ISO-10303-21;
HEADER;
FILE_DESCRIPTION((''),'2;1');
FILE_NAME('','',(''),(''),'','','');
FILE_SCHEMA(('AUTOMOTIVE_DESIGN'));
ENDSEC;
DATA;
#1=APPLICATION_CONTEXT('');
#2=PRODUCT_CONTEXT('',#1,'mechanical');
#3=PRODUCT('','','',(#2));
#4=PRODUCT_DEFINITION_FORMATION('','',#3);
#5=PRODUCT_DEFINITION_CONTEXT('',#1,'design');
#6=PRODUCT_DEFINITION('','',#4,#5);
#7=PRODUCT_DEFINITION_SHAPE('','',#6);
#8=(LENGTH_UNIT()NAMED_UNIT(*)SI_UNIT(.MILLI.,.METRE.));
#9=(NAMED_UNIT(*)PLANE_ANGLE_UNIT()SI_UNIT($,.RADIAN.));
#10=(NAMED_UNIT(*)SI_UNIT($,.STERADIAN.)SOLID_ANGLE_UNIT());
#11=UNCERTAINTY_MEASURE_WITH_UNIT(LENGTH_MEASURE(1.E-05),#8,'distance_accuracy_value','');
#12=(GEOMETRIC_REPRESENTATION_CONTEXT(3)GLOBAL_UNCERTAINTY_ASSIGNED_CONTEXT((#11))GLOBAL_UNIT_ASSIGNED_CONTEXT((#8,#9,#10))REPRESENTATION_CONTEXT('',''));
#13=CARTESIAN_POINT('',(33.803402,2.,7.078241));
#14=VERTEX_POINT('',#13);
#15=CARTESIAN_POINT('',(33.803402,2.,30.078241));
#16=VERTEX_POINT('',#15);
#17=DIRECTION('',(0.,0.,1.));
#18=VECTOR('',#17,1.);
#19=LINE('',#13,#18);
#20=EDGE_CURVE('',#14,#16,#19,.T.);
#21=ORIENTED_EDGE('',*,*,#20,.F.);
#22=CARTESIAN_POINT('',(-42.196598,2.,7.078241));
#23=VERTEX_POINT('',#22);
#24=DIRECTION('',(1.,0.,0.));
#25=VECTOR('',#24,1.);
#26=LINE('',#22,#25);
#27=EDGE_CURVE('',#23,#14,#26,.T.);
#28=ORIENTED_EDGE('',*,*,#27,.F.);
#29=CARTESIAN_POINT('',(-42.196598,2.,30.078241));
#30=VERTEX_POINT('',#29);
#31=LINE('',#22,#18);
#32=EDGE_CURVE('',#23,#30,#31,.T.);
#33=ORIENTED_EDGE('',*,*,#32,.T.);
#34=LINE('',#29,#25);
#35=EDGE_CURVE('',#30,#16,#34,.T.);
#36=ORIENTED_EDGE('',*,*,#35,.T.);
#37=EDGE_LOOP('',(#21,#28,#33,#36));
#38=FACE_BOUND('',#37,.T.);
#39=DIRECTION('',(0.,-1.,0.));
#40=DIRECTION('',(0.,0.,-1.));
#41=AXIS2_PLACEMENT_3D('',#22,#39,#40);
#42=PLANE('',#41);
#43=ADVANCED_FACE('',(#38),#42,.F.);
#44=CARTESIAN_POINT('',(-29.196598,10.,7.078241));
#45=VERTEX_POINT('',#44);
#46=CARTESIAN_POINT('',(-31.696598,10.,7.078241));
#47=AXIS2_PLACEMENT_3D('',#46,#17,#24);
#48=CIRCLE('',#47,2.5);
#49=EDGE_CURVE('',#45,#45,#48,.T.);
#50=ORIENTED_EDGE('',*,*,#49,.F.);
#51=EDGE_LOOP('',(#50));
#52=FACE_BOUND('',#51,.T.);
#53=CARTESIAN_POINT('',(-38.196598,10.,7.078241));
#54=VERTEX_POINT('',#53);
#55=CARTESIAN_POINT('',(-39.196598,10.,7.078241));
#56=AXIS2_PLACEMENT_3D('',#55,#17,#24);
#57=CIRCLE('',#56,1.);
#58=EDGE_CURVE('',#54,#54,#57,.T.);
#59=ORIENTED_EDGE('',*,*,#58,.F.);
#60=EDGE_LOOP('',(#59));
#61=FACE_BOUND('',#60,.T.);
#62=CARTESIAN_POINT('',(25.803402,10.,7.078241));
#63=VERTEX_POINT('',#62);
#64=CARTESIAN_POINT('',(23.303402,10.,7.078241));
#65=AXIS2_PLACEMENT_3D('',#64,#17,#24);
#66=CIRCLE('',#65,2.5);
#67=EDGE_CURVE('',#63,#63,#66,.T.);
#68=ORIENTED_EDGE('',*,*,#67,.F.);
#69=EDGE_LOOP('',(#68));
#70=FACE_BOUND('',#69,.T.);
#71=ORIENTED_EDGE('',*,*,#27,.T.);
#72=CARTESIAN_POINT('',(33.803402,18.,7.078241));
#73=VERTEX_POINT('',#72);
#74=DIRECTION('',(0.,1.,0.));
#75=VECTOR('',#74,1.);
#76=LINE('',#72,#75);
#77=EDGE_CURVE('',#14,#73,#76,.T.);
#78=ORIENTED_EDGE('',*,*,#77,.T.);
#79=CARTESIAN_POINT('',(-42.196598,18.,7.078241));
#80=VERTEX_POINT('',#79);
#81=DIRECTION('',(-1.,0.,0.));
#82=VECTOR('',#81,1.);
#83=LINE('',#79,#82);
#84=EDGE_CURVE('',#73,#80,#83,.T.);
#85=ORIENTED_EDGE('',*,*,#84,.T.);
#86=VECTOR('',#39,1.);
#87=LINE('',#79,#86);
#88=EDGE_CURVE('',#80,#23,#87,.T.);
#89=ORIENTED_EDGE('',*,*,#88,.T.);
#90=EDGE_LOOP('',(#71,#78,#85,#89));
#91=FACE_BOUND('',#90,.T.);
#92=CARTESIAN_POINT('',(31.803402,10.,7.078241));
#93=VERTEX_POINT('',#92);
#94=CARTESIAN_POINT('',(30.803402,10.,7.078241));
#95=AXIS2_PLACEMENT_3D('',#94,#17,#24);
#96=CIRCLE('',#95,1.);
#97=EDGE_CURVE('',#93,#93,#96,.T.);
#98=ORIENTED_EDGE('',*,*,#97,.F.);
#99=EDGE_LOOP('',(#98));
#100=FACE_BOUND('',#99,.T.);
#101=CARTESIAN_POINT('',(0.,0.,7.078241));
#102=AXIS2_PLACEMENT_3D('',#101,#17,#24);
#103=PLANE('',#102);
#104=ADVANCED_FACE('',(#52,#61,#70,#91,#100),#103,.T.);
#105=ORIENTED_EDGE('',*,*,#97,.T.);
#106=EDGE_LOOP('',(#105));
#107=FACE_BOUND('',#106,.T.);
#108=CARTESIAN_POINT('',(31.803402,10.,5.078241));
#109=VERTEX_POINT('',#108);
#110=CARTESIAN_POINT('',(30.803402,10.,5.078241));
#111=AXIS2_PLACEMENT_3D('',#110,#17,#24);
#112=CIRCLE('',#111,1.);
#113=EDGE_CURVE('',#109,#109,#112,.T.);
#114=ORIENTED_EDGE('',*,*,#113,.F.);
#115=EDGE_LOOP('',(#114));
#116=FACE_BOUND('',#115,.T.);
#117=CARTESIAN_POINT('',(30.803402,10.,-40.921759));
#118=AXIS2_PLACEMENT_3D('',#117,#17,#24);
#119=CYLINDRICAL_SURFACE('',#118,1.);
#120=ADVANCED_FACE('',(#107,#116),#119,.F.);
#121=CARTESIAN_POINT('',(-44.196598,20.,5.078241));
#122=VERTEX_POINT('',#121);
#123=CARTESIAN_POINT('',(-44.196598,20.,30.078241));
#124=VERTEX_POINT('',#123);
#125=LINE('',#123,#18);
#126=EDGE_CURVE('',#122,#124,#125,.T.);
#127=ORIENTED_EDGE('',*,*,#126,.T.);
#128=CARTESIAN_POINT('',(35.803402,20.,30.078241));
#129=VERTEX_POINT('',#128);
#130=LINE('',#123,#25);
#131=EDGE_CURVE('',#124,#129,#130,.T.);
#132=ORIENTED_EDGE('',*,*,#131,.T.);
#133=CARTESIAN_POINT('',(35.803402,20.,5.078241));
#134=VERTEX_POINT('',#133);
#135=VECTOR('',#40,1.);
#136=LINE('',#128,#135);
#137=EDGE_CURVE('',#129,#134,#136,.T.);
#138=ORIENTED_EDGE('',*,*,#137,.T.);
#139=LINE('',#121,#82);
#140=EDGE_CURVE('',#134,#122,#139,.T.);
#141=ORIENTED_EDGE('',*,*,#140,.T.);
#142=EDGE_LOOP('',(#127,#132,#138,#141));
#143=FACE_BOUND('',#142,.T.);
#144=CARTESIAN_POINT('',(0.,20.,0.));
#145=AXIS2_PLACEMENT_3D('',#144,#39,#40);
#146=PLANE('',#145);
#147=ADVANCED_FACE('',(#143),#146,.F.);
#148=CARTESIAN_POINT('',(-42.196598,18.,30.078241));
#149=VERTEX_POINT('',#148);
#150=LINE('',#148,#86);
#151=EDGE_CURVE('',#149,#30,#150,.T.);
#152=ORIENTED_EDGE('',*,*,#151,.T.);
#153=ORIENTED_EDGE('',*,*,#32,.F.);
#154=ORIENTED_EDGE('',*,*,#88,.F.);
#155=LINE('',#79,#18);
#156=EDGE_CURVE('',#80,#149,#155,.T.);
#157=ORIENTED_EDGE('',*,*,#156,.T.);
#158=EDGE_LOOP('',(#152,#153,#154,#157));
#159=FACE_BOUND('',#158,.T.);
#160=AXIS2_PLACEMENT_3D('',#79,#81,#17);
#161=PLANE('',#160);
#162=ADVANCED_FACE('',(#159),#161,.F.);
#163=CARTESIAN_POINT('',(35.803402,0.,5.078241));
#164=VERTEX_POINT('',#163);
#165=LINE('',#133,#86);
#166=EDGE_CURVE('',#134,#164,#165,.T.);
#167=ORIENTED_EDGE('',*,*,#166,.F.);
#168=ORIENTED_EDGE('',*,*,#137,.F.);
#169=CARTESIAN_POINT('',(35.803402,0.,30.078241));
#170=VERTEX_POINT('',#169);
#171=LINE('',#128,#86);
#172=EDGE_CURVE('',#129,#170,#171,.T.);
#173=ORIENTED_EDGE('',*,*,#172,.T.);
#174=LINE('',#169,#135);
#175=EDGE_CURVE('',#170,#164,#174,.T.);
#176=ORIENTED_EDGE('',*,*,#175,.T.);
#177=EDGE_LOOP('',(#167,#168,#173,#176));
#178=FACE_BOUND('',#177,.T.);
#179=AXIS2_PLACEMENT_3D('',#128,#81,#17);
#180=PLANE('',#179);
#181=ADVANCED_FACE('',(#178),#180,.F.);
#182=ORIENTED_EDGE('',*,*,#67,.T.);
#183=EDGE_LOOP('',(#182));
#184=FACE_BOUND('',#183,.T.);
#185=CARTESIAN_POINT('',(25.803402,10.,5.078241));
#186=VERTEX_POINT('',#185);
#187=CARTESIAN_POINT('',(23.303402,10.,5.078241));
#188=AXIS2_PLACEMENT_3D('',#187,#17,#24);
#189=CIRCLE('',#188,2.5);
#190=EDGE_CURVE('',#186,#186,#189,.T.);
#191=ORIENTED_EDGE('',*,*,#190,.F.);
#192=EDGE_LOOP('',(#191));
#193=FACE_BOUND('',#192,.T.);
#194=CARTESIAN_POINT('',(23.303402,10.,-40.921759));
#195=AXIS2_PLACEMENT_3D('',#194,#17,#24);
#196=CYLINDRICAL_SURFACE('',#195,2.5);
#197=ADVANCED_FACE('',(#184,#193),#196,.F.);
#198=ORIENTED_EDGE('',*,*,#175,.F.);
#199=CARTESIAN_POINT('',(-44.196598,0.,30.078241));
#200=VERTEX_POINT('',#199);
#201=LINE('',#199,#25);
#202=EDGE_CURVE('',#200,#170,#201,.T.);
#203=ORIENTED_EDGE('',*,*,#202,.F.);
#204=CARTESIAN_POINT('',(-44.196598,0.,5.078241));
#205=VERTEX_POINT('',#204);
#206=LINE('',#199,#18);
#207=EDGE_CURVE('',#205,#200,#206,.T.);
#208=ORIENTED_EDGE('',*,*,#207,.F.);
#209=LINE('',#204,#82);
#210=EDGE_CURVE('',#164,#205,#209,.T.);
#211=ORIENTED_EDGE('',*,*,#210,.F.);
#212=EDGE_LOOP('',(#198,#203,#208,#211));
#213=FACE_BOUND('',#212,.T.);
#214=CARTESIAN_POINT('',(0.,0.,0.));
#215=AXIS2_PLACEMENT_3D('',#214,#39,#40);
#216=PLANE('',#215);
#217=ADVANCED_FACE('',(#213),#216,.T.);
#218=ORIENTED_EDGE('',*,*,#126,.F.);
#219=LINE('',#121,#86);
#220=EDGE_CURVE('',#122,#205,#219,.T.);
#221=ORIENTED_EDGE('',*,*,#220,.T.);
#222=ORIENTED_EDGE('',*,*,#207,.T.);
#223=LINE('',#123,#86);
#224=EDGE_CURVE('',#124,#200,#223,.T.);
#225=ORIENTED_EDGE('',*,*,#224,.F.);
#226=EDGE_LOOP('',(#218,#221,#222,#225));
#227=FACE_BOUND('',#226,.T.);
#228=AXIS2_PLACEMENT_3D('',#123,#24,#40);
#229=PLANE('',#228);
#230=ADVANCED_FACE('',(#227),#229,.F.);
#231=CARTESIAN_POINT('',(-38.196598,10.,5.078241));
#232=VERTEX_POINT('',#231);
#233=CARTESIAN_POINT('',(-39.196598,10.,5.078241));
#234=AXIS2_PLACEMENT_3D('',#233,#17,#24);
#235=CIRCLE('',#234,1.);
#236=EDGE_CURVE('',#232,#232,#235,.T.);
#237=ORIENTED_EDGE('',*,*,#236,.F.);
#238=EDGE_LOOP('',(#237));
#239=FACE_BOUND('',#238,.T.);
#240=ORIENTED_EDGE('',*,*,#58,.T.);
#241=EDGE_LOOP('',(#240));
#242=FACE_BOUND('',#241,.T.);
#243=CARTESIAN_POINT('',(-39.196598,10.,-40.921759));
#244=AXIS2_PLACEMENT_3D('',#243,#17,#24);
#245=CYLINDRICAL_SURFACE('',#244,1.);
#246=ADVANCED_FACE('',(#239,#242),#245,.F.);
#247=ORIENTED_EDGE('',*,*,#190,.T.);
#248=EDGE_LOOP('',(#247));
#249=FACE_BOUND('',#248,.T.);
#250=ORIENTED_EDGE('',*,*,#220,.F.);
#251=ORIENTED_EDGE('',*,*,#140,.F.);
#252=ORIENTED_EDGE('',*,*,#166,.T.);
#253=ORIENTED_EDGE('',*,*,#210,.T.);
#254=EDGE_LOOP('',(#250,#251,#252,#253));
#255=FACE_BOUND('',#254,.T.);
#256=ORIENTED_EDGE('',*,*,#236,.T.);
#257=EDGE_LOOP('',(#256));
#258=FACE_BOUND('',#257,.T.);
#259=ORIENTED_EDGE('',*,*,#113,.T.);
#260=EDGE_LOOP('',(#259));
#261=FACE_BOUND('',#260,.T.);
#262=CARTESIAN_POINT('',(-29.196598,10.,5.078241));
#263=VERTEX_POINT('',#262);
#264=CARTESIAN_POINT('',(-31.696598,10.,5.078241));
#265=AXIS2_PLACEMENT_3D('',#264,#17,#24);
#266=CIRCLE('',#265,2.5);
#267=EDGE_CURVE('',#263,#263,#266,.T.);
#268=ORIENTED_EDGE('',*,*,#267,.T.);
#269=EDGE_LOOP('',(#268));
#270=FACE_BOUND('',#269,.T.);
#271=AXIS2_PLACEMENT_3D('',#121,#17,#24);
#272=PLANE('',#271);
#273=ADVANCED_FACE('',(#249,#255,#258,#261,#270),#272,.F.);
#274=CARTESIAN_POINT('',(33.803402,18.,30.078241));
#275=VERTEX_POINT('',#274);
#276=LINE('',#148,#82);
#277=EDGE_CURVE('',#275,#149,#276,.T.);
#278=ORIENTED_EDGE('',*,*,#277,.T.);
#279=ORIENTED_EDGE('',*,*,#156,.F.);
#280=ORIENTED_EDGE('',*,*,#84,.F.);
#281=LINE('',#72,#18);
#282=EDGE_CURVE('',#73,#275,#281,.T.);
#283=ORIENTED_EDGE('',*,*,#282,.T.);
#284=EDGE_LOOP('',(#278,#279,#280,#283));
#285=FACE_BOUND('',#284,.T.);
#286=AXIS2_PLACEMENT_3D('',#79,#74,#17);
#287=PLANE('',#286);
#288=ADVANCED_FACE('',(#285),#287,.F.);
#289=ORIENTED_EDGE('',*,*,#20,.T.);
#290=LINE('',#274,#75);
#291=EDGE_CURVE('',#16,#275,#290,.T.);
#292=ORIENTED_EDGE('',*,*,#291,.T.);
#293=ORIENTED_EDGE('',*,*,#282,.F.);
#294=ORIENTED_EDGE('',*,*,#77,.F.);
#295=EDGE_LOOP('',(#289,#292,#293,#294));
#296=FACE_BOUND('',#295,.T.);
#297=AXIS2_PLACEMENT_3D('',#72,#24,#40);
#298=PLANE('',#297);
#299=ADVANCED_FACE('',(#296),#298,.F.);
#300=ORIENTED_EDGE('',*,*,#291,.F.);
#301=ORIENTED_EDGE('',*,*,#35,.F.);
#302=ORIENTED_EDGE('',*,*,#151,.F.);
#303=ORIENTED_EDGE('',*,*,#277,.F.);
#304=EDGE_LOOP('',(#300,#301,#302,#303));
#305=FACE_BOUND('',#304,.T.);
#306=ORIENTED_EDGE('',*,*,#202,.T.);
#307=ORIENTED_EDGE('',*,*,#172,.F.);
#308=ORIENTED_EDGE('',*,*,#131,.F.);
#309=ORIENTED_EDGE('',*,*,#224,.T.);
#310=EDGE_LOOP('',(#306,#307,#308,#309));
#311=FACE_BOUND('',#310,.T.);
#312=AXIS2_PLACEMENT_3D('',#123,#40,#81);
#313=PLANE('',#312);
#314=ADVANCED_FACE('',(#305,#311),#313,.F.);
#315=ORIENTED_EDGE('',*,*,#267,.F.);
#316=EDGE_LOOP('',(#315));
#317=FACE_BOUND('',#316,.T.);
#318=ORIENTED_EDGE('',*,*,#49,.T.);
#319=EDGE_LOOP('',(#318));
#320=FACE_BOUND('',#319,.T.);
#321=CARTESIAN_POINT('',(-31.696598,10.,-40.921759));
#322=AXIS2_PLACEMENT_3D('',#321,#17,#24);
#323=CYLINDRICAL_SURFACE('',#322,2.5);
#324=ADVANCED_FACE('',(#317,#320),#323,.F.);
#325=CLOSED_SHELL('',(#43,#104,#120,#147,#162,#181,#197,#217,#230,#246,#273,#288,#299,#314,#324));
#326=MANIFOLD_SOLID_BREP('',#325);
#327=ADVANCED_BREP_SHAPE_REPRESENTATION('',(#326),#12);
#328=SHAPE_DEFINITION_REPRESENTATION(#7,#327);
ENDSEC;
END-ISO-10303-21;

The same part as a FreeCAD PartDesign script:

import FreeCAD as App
import Part
import Sketcher
Q = App.Units.Quantity

doc = App.newDocument("Part")
body = doc.addObject("PartDesign::Body", "Body")

# Sketch on XZ plane
sketch1 = doc.addObject("Sketcher::SketchObject", "Sketch")
body.addObject(sketch1)
sketch1.AttachmentSupport = (doc.XZ_Plane, [""])
sketch1.MapMode = "FlatFace"
sketch1.addGeometry([
    Part.LineSegment(App.Vector(-44, 5, 0), App.Vector(-44, 30, 0)),
    Part.LineSegment(App.Vector(-44, 30, 0), App.Vector(36, 30, 0)),
    Part.LineSegment(App.Vector(36, 30, 0), App.Vector(36, 5, 0)),
    Part.LineSegment(App.Vector(36, 5, 0), App.Vector(-44, 5, 0)),
], False)
sketch1.addConstraint([
    Sketcher.Constraint("Coincident", 0, 2, 1, 1),
    Sketcher.Constraint("Coincident", 1, 2, 2, 1),
    Sketcher.Constraint("Coincident", 2, 2, 3, 1),
    Sketcher.Constraint("Coincident", 3, 2, 0, 1),
    Sketcher.Constraint("Vertical", 0),
    Sketcher.Constraint("Horizontal", 1),
    Sketcher.Constraint("Vertical", 2),
    Sketcher.Constraint("Horizontal", 3),
    Sketcher.Constraint("DistanceX", 1, 1, 1, 2, Q("80 mm")),
    Sketcher.Constraint("DistanceY", 0, 1, 0, 2, Q("25 mm")),
    Sketcher.Constraint("DistanceX", 0, 2, -1, 1, Q("44.196598 mm")),
    Sketcher.Constraint("DistanceY", -1, 1, 0, 2, Q("30.078241 mm")),
])
pad1 = doc.addObject("PartDesign::Pad", "Pad")
body.addObject(pad1)
pad1.Profile = sketch1
pad1.Length = 20
pad1.Reversed = True

# Sketch on XY plane
sketch2 = doc.addObject("Sketcher::SketchObject", "Sketch001")
body.addObject(sketch2)
sketch2.AttachmentSupport = (doc.XY_Plane, [""])
sketch2.MapMode = "FlatFace"
sketch2.AttachmentOffset = App.Placement(App.Vector(0, 0, 30.078241), App.Rotation())
sketch2.addGeometry([
    Part.LineSegment(App.Vector(-42, 18, 0), App.Vector(-42, 2, 0)),
    Part.LineSegment(App.Vector(-42, 2, 0), App.Vector(34, 2, 0)),
    Part.LineSegment(App.Vector(34, 2, 0), App.Vector(34, 18, 0)),
    Part.LineSegment(App.Vector(34, 18, 0), App.Vector(-42, 18, 0)),
], False)
sketch2.addConstraint([
    Sketcher.Constraint("Coincident", 0, 2, 1, 1),
    Sketcher.Constraint("Coincident", 1, 2, 2, 1),
    Sketcher.Constraint("Coincident", 2, 2, 3, 1),
    Sketcher.Constraint("Coincident", 3, 2, 0, 1),
    Sketcher.Constraint("Vertical", 0),
    Sketcher.Constraint("Horizontal", 1),
    Sketcher.Constraint("Vertical", 2),
    Sketcher.Constraint("Horizontal", 3),
    Sketcher.Constraint("DistanceX", 1, 1, 1, 2, Q("76 mm")),
    Sketcher.Constraint("DistanceY", 0, 2, 0, 1, Q("16 mm")),
    Sketcher.Constraint("DistanceY", -1, 1, 0, 2, Q("2 mm")),
    Sketcher.Constraint("DistanceX", 0, 2, -1, 1, Q("42.196598 mm")),
])
pocket1 = doc.addObject("PartDesign::Pocket", "Pocket")
body.addObject(pocket1)
pocket1.Profile = sketch2
pocket1.Length = 23

# Sketch on XY plane
sketch3 = doc.addObject("Sketcher::SketchObject", "Sketch002")
body.addObject(sketch3)
sketch3.AttachmentSupport = (doc.XY_Plane, [""])
sketch3.MapMode = "FlatFace"
sketch3.AttachmentOffset = App.Placement(App.Vector(0, 0, 7.078241), App.Rotation())
sketch3.addGeometry([
    Part.Circle(App.Vector(30.8, 10, 0), App.Vector(0, 0, 1), 1),
    Part.Circle(App.Vector(-39.2, 10, 0), App.Vector(0, 0, 1), 1),
], False)
sketch3.addConstraint([
    Sketcher.Constraint("Equal", 0, 1),
    Sketcher.Constraint("Horizontal", 0, 3, 1, 3),
    Sketcher.Constraint("Diameter", 0, Q("2 mm")),
    Sketcher.Constraint("DistanceY", -1, 1, 0, 3, Q("10 mm")),
    Sketcher.Constraint("DistanceX", 1, 3, 0, 3, Q("70 mm")),
    Sketcher.Constraint("DistanceX", -1, 1, 0, 3, Q("30.803402 mm")),
])
pocket2 = doc.addObject("PartDesign::Pocket", "Pocket001")
body.addObject(pocket2)
pocket2.Profile = sketch3
pocket2.Length = 48

# Sketch on XY plane
sketch4 = doc.addObject("Sketcher::SketchObject", "Sketch003")
body.addObject(sketch4)
sketch4.AttachmentSupport = (doc.XY_Plane, [""])
sketch4.MapMode = "FlatFace"
sketch4.AttachmentOffset = App.Placement(App.Vector(0, 0, 7.078241), App.Rotation())
sketch4.addGeometry([
    Part.Circle(App.Vector(-31.7, 10, 0), App.Vector(0, 0, 1), 2.5),
    Part.Circle(App.Vector(23.3, 10, 0), App.Vector(0, 0, 1), 2.5),
], False)
sketch4.addConstraint([
    Sketcher.Constraint("Equal", 0, 1),
    Sketcher.Constraint("Horizontal", 0, 3, 1, 3),
    Sketcher.Constraint("Diameter", 0, Q("5 mm")),
    Sketcher.Constraint("DistanceY", -1, 1, 0, 3, Q("10 mm")),
    Sketcher.Constraint("DistanceX", 0, 3, 1, 3, Q("55 mm")),
    Sketcher.Constraint("DistanceX", 0, 3, -1, 1, Q("31.696598 mm")),
])
pocket3 = doc.addObject("PartDesign::Pocket", "Pocket002")
body.addObject(pocket3)
pocket3.Profile = sketch4
pocket3.Length = 48

doc.recompute()
